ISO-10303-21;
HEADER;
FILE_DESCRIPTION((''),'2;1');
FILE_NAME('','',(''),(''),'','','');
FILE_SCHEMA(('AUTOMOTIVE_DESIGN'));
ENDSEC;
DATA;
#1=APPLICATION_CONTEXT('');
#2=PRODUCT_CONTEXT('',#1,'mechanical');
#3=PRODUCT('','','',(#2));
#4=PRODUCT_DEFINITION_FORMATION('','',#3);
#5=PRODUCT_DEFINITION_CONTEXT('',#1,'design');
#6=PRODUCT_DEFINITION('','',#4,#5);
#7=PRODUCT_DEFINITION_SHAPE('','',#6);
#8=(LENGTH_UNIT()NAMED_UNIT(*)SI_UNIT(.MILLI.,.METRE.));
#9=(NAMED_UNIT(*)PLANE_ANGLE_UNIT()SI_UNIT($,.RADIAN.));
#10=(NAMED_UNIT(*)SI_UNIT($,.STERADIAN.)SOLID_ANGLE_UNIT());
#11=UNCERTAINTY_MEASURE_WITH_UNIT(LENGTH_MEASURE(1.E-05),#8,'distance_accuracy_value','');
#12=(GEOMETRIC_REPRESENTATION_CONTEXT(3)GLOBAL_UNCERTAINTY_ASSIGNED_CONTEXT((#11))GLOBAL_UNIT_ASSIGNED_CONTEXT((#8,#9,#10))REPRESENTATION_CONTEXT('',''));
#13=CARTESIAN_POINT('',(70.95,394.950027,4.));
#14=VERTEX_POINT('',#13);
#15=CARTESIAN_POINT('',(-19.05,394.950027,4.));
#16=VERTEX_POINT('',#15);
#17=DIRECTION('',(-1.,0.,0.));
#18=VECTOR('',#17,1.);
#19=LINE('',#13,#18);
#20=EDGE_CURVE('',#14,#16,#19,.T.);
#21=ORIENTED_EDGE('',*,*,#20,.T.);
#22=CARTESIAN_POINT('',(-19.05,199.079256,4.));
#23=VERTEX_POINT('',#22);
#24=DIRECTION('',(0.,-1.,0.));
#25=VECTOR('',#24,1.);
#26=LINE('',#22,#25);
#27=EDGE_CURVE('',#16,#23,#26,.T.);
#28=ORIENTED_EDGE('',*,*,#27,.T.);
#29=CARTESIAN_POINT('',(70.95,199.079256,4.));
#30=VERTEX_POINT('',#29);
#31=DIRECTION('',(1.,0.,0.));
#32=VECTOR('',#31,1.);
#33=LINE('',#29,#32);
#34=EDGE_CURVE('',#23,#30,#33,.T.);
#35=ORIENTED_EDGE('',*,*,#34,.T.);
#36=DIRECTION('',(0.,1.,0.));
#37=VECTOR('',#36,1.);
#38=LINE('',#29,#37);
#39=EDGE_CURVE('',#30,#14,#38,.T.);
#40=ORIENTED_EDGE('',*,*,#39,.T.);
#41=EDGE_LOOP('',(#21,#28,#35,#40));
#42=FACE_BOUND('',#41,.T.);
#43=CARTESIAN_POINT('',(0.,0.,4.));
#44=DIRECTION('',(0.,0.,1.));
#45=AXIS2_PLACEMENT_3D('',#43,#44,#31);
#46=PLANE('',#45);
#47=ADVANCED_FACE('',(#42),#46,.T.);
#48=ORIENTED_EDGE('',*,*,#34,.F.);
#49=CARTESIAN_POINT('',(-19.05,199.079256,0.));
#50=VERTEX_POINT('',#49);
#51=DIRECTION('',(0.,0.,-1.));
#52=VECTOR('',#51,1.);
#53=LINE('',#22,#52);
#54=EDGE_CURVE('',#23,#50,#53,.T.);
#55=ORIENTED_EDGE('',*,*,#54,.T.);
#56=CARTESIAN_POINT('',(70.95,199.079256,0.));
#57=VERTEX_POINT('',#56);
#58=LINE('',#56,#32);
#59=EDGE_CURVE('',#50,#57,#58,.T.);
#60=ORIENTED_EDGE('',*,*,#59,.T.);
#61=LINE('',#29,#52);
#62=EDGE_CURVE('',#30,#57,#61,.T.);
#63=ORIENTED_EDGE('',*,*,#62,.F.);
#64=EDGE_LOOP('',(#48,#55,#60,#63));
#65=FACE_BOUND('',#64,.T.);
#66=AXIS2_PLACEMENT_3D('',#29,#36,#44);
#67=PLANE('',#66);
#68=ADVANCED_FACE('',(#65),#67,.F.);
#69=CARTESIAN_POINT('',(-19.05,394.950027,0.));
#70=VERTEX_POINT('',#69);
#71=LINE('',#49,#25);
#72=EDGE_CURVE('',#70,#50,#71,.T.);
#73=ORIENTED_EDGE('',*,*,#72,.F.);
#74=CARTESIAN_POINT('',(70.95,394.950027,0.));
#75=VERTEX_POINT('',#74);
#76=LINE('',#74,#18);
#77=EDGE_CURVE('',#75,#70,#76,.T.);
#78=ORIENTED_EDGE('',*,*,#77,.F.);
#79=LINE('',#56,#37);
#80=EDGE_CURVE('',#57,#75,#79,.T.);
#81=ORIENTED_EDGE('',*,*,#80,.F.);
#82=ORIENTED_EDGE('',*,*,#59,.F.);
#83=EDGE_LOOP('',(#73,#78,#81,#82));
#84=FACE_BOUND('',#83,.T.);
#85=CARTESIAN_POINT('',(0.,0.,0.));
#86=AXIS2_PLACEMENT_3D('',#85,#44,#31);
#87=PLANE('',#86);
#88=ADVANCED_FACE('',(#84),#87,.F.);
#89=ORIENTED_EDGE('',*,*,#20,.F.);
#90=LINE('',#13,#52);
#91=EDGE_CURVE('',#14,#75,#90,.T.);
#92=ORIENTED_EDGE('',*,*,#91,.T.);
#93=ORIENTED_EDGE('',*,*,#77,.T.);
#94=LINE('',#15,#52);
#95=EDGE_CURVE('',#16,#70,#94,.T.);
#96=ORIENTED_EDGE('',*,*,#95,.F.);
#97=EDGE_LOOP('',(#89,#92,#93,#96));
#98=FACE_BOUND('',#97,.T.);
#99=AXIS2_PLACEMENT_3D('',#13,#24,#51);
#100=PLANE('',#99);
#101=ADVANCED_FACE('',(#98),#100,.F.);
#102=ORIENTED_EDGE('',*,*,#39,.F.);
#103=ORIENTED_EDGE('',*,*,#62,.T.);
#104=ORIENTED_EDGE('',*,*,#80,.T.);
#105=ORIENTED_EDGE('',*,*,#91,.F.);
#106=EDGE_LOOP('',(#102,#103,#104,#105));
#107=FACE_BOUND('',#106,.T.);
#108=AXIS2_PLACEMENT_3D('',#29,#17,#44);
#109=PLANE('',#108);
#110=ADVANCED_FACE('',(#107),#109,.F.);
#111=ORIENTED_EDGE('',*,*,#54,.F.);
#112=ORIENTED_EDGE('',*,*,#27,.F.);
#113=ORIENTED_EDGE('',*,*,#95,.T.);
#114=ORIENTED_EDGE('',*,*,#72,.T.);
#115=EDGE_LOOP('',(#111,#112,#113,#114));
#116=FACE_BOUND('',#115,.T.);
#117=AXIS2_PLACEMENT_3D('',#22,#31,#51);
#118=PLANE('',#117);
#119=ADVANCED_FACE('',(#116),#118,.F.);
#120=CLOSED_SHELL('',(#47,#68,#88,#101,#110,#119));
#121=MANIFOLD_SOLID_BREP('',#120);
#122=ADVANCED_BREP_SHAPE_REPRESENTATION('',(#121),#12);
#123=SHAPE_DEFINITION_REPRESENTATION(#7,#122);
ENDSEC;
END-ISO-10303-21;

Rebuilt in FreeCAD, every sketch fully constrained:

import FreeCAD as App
import Part
import Sketcher
from FreeCAD import Vector

doc = App.newDocument("Part")
body = doc.addObject("PartDesign::Body", "Body")

sketch1 = body.newObject("Sketcher::SketchObject", "Sketch")
sketch1.AttachmentSupport = (doc.getObject("XY_Plane"), [""])
sketch1.MapMode = "FlatFace"
sketch1.addGeometry(Part.LineSegment(Vector(-19, 395, 0), Vector(-19, 199, 0)), False)
sketch1.addGeometry(Part.LineSegment(Vector(-19, 199, 0), Vector(71, 199, 0)), False)
sketch1.addGeometry(Part.LineSegment(Vector(71, 199, 0), Vector(71, 395, 0)), False)
sketch1.addGeometry(Part.LineSegment(Vector(71, 395, 0), Vector(-19, 395, 0)), False)
sketch1.addConstraint(Sketcher.Constraint("Coincident", 0, 2, 1, 1))
sketch1.addConstraint(Sketcher.Constraint("Coincident", 1, 2, 2, 1))
sketch1.addConstraint(Sketcher.Constraint("Coincident", 2, 2, 3, 1))
sketch1.addConstraint(Sketcher.Constraint("Coincident", 3, 2, 0, 1))
sketch1.addConstraint(Sketcher.Constraint("Vertical", 0))
sketch1.addConstraint(Sketcher.Constraint("Horizontal", 1))
sketch1.addConstraint(Sketcher.Constraint("Vertical", 2))
sketch1.addConstraint(Sketcher.Constraint("Horizontal", 3))
sketch1.addConstraint(Sketcher.Constraint("DistanceX", 1, 1, 1, 2, 90.0))
sketch1.addConstraint(Sketcher.Constraint("DistanceX", 0, 2, -1, 1, 19.05))
sketch1.addConstraint(Sketcher.Constraint("DistanceY", 0, 2, 0, 1, 195.870771))
sketch1.addConstraint(Sketcher.Constraint("DistanceY", -1, 1, 0, 2, 199.079256))
pad1 = body.newObject("PartDesign::Pad", "Pad")
pad1.Profile = sketch1
pad1.Length = 4

doc.recompute()
